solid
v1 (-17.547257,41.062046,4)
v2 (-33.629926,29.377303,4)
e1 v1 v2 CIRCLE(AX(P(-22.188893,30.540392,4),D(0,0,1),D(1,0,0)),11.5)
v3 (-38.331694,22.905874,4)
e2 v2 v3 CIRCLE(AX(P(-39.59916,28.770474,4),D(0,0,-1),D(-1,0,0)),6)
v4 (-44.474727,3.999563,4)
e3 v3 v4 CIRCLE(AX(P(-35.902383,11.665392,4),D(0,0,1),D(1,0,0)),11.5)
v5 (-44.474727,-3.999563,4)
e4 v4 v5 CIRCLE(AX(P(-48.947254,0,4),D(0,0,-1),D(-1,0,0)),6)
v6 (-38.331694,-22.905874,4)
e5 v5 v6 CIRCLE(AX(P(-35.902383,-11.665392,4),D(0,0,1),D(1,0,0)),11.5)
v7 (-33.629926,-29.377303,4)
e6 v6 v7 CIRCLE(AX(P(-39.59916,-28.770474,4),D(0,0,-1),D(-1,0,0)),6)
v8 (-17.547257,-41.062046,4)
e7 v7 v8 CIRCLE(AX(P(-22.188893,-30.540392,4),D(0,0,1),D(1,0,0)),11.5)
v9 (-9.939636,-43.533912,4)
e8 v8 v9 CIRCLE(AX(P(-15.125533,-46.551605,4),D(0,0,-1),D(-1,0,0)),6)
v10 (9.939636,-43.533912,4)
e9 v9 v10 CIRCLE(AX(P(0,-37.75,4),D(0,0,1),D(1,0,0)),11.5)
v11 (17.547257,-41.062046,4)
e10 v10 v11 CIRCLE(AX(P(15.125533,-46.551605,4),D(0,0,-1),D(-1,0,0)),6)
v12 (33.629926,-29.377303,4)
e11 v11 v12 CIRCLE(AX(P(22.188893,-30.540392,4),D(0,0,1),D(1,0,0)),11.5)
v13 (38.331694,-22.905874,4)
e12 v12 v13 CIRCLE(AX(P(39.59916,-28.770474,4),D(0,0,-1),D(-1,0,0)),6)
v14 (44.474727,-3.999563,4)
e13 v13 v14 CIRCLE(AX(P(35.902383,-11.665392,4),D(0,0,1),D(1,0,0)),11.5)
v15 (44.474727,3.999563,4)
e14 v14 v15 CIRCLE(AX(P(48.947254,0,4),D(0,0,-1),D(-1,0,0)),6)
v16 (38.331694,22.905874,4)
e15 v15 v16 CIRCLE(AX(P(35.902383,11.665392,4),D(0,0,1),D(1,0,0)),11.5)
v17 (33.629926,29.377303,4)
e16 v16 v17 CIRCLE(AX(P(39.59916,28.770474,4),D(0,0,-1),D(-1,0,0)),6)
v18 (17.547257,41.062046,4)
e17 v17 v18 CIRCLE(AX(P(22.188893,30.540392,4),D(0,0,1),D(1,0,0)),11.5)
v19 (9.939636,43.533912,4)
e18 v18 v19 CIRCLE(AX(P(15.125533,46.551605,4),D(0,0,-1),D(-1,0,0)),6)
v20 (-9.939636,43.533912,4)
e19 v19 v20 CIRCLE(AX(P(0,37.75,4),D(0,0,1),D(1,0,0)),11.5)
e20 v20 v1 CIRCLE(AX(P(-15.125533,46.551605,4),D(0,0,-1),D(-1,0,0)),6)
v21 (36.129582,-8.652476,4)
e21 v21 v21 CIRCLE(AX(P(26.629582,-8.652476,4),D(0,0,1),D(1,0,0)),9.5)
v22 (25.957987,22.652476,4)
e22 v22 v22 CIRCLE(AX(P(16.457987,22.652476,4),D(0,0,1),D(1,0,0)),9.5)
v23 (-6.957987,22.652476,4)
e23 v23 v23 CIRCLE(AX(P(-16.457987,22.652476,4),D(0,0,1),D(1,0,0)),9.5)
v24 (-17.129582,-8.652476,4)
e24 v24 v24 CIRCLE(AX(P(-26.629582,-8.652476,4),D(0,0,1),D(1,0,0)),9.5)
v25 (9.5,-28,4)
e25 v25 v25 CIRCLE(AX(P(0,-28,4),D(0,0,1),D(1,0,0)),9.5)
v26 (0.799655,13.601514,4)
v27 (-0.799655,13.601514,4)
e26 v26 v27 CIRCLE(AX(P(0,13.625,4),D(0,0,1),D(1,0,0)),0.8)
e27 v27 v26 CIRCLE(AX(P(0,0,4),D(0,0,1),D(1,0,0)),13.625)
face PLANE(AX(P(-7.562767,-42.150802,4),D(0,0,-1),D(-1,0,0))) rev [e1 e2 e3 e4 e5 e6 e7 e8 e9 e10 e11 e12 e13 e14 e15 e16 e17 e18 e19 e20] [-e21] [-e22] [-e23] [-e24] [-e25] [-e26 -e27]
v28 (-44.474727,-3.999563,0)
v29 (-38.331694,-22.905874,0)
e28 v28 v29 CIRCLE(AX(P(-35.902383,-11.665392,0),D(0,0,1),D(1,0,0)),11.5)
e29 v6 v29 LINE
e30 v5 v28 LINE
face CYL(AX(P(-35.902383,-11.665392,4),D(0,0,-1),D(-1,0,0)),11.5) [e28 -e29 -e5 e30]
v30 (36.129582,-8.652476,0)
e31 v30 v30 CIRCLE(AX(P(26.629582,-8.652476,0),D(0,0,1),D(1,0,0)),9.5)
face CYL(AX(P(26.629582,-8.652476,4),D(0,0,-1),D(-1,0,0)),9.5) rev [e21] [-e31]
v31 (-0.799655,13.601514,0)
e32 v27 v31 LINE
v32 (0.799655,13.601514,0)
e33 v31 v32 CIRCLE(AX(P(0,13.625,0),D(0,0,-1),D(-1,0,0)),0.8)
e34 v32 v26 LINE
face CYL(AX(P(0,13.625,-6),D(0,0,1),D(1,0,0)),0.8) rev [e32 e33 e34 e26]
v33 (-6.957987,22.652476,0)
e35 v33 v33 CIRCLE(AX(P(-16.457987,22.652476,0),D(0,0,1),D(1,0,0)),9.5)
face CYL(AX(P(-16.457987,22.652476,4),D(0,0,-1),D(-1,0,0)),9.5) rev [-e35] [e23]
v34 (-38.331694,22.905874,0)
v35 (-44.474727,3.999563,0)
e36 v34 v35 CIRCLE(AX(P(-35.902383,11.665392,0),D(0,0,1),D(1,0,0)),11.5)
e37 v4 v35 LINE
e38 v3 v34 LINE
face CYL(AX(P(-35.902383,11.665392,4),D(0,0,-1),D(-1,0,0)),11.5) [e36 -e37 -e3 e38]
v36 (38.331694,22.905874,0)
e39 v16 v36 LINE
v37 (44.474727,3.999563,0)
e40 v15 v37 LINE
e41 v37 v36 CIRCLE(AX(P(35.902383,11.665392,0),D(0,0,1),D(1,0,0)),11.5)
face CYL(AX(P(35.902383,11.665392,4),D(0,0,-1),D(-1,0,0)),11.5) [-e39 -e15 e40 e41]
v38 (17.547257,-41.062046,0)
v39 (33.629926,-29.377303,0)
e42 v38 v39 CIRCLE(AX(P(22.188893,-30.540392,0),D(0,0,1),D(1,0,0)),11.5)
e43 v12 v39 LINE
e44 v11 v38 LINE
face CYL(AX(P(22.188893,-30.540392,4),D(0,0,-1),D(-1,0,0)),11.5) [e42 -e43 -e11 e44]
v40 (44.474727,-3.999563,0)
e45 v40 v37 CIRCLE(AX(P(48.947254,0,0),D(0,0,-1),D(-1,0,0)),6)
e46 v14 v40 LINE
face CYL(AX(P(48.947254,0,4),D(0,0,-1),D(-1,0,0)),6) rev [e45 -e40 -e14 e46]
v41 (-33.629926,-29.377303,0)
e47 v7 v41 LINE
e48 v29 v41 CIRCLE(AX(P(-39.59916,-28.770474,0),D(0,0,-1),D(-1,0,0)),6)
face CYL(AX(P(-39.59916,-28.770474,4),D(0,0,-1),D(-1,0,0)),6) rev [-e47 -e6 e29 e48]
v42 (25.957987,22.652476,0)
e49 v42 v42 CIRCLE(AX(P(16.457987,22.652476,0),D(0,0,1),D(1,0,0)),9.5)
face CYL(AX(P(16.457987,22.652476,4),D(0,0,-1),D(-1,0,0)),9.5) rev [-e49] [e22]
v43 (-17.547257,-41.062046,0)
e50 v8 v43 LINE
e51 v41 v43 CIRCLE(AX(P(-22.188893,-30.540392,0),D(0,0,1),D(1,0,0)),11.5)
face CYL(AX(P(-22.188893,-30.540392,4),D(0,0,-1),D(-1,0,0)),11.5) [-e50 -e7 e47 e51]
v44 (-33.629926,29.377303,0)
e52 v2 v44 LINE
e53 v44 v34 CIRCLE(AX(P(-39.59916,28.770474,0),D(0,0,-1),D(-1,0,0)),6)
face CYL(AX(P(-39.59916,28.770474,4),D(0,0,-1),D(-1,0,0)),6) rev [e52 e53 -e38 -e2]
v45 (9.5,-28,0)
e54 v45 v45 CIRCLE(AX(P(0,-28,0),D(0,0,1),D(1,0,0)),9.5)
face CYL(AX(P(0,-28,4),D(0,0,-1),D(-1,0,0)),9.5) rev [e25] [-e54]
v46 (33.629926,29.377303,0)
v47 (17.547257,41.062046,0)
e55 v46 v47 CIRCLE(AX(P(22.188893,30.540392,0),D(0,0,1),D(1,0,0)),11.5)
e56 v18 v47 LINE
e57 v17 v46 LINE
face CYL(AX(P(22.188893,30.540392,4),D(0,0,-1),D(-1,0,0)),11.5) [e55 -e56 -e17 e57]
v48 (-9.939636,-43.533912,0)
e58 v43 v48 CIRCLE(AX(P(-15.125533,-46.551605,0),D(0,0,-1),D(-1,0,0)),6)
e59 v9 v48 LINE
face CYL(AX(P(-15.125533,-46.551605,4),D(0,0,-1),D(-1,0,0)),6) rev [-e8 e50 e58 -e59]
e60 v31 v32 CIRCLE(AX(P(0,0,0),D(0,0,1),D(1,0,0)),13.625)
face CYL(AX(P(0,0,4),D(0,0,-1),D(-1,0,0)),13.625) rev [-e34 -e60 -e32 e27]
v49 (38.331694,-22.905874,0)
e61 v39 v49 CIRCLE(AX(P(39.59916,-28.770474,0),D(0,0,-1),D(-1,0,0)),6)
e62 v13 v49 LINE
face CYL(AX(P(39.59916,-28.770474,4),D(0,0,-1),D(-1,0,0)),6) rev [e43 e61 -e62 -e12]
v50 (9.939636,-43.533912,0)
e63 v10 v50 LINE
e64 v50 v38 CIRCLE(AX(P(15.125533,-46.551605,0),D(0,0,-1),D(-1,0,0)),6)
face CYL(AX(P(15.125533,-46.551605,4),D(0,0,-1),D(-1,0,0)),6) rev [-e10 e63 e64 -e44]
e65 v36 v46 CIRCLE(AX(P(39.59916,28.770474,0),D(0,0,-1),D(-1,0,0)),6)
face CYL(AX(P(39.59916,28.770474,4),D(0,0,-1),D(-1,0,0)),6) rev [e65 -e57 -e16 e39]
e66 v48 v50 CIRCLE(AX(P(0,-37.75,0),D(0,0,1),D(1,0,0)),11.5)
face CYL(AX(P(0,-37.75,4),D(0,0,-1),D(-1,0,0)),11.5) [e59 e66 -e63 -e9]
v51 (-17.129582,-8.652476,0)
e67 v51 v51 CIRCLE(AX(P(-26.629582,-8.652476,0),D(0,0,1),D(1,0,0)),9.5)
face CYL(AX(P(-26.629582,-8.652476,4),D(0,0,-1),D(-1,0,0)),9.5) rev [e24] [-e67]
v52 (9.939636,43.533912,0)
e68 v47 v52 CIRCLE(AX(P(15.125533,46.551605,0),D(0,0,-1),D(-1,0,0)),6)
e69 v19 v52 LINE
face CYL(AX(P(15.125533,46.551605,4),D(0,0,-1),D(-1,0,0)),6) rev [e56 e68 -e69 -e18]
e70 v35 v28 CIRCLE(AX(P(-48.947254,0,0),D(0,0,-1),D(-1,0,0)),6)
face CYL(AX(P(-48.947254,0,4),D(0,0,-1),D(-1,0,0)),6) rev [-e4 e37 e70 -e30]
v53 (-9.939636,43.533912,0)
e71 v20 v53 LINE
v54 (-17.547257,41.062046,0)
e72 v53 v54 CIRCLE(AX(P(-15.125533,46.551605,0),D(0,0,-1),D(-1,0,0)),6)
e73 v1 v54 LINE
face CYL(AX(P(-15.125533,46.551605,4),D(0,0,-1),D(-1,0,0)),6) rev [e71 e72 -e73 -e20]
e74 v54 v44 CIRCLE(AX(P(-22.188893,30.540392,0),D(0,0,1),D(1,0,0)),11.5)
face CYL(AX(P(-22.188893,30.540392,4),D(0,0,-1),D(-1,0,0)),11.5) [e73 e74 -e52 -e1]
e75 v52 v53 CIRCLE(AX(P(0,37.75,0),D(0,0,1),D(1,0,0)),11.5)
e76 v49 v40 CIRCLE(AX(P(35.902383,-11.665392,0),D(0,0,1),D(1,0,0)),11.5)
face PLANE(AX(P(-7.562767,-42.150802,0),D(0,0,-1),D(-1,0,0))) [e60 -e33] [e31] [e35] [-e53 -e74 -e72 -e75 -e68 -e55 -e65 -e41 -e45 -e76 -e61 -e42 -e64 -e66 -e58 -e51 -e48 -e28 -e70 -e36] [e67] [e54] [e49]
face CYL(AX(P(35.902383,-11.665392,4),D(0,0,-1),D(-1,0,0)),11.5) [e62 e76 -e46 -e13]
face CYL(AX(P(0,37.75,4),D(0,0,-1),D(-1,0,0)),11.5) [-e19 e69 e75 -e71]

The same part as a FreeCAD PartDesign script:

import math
import FreeCAD as App
import Part
import Sketcher
Q = App.Units.Quantity

doc = App.newDocument("Part")
body = doc.addObject("PartDesign::Body", "Body")

# Sketch on XY plane
sketch1 = body.newObject("Sketcher::SketchObject", "Sketch")
sketch1.AttachmentSupport = (doc.getObject("XY_Plane"), [""])
sketch1.MapMode = "FlatFace"
sketch1.addGeometry([
    Part.ArcOfCircle(Part.Circle(App.Vector(0, -37.75, 0), App.Vector(0, 0, 1), 11.5), math.radians(-149.804714), math.radians(-30.195286)),  # 0
    Part.ArcOfCircle(Part.Circle(App.Vector(15.125533, -46.551605, 0), App.Vector(0, 0, 1), 6), math.radians(66.195286), math.radians(149.804714)),  # 1
    Part.ArcOfCircle(Part.Circle(App.Vector(22.188893, -30.540392, 0), App.Vector(0, 0, 1), 11.5), math.radians(-113.804714), math.radians(5.804714)),  # 2
    Part.ArcOfCircle(Part.Circle(App.Vector(39.59916, -28.770474, 0), App.Vector(0, 0, 1), 6), math.radians(102.195286), math.radians(185.804714)),  # 3
    Part.ArcOfCircle(Part.Circle(App.Vector(35.902383, -11.665392, 0), App.Vector(0, 0, 1), 11.5), math.radians(-77.804714), math.radians(41.804714)),  # 4
    Part.ArcOfCircle(Part.Circle(App.Vector(48.947254, 0, 0), App.Vector(0, 0, 1), 6), math.radians(138.195286), math.radians(221.804714)),  # 5
    Part.ArcOfCircle(Part.Circle(App.Vector(35.902383, 11.665392, 0), App.Vector(0, 0, 1), 11.5), math.radians(-41.804714), math.radians(77.804714)),  # 6
    Part.ArcOfCircle(Part.Circle(App.Vector(39.59916, 28.770474, 0), App.Vector(0, 0, 1), 6), math.radians(174.195286), math.radians(257.804714)),  # 7
    Part.ArcOfCircle(Part.Circle(App.Vector(22.188893, 30.540392, 0), App.Vector(0, 0, 1), 11.5), math.radians(-5.804714), math.radians(113.804714)),  # 8
    Part.ArcOfCircle(Part.Circle(App.Vector(15.125533, 46.551605, 0), App.Vector(0, 0, 1), 6), math.radians(-149.804714), math.radians(-66.195286)),  # 9
    Part.ArcOfCircle(Part.Circle(App.Vector(0, 37.75, 0), App.Vector(0, 0, 1), 11.5), math.radians(30.195286), math.radians(149.804714)),  # 10
    Part.ArcOfCircle(Part.Circle(App.Vector(-15.125533, 46.551605, 0), App.Vector(0, 0, 1), 6), math.radians(-113.804714), math.radians(-30.195286)),  # 11
    Part.ArcOfCircle(Part.Circle(App.Vector(-22.188893, 30.540392, 0), App.Vector(0, 0, 1), 11.5), math.radians(66.195286), math.radians(185.804714)),  # 12
    Part.ArcOfCircle(Part.Circle(App.Vector(-39.59916, 28.770474, 0), App.Vector(0, 0, 1), 6), math.radians(-77.804714), math.radians(5.804714)),  # 13
    Part.ArcOfCircle(Part.Circle(App.Vector(-35.902383, 11.665392, 0), App.Vector(0, 0, 1), 11.5), math.radians(102.195286), math.radians(221.804714)),  # 14
    Part.ArcOfCircle(Part.Circle(App.Vector(-48.947254, 0, 0), App.Vector(0, 0, 1), 6), math.radians(-41.804714), math.radians(41.804714)),  # 15
    Part.ArcOfCircle(Part.Circle(App.Vector(-35.902383, -11.665392, 0), App.Vector(0, 0, 1), 11.5), math.radians(138.195286), math.radians(257.804714)),  # 16
    Part.ArcOfCircle(Part.Circle(App.Vector(-39.59916, -28.770474, 0), App.Vector(0, 0, 1), 6), math.radians(-5.804714), math.radians(77.804714)),  # 17
    Part.ArcOfCircle(Part.Circle(App.Vector(-22.188893, -30.540392, 0), App.Vector(0, 0, 1), 11.5), math.radians(174.195286), math.radians(293.804714)),  # 18
    Part.ArcOfCircle(Part.Circle(App.Vector(-15.125533, -46.551605, 0), App.Vector(0, 0, 1), 6), math.radians(30.195286), math.radians(113.804714)),  # 19
    Part.Circle(App.Vector(-26.629582, -8.652476, 0), App.Vector(0, 0, 1), 9.5),  # 20
    Part.Circle(App.Vector(0, -28, 0), App.Vector(0, 0, 1), 9.5),  # 21
    Part.Circle(App.Vector(26.629582, -8.652476, 0), App.Vector(0, 0, 1), 9.5),  # 22
    Part.Circle(App.Vector(-16.457987, 22.652476, 0), App.Vector(0, 0, 1), 9.5),  # 23
    Part.Circle(App.Vector(0, 0, 0), App.Vector(0, 0, 1), 13.625),  # 24
    Part.Circle(App.Vector(16.457987, 22.652476, 0), App.Vector(0, 0, 1), 9.5),  # 25
], False)
sketch1.addConstraint([
    Sketcher.Constraint("Tangent", 0, 2, 1, 2),
    Sketcher.Constraint("Tangent", 1, 1, 2, 1),
    Sketcher.Constraint("Tangent", 2, 2, 3, 2),
    Sketcher.Constraint("Tangent", 3, 1, 4, 1),
    Sketcher.Constraint("Tangent", 4, 2, 5, 2),
    Sketcher.Constraint("Tangent", 5, 1, 6, 1),
    Sketcher.Constraint("Tangent", 6, 2, 7, 2),
    Sketcher.Constraint("Tangent", 7, 1, 8, 1),
    Sketcher.Constraint("Tangent", 8, 2, 9, 2),
    Sketcher.Constraint("Tangent", 9, 1, 10, 1),
    Sketcher.Constraint("Tangent", 10, 2, 11, 2),
    Sketcher.Constraint("Tangent", 11, 1, 12, 1),
    Sketcher.Constraint("Tangent", 12, 2, 13, 2),
    Sketcher.Constraint("Tangent", 13, 1, 14, 1),
    Sketcher.Constraint("Tangent", 14, 2, 15, 2),
    Sketcher.Constraint("Tangent", 15, 1, 16, 1),
    Sketcher.Constraint("Tangent", 16, 2, 17, 2),
    Sketcher.Constraint("Tangent", 17, 1, 18, 1),
    Sketcher.Constraint("Tangent", 18, 2, 19, 2),
    Sketcher.Constraint("Tangent", 19, 1, 0, 1),
    Sketcher.Constraint("Coincident", 24, 3, -1, 1),
    Sketcher.Constraint("Equal", 0, 2),
    Sketcher.Constraint("Equal", 1, 3),
    Sketcher.Constraint("Equal", 2, 4),
    Sketcher.Constraint("Equal", 3, 5),
    Sketcher.Constraint("Equal", 4, 6),
    Sketcher.Constraint("Equal", 5, 7),
    Sketcher.Constraint("Equal", 6, 8),
    Sketcher.Constraint("Equal", 7, 9),
    Sketcher.Constraint("Equal", 8, 10),
    Sketcher.Constraint("Equal", 9, 11),
    Sketcher.Constraint("Equal", 10, 12),
    Sketcher.Constraint("Equal", 11, 13),
    Sketcher.Constraint("Equal", 12, 14),
    Sketcher.Constraint("Equal", 13, 15),
    Sketcher.Constraint("Equal", 14, 16),
    Sketcher.Constraint("Equal", 15, 17),
    Sketcher.Constraint("Equal", 16, 18),
    Sketcher.Constraint("Equal", 17, 19),
    Sketcher.Constraint("Equal", 20, 21),
    Sketcher.Constraint("Equal", 21, 22),
    Sketcher.Constraint("Equal", 22, 23),
    Sketcher.Constraint("Equal", 23, 25),
    Sketcher.Constraint("Symmetric", 0, 3, 10, 3, -1, 1),
    Sketcher.Constraint("Symmetric", 2, 3, 12, 3, -1, 1),
    Sketcher.Constraint("Symmetric", 4, 3, 14, 3, -1, 1),
    Sketcher.Constraint("Symmetric", 6, 3, 16, 3, -1, 1),
    Sketcher.Constraint("Symmetric", 8, 3, 18, 3, -1, 1),
    Sketcher.Constraint("Symmetric", 9, 3, 11, 3, -2),
    Sketcher.Constraint("Symmetric", 7, 3, 13, 3, -2),
    Sketcher.Constraint("Symmetric", 20, 3, 22, 3, -2),
    Sketcher.Constraint("Symmetric", 23, 3, 25, 3, -2),
    Sketcher.Constraint("PointOnObject", 5, 3, -1),
    Sketcher.Constraint("PointOnObject", 21, 3, -2),
    Sketcher.Constraint("Diameter", 20, Q("19 mm")),
    Sketcher.Constraint("Radius", 1, Q("6 mm")),
    Sketcher.Constraint("Radius", 0, Q("11.5 mm")),
    Sketcher.Constraint("Diameter", 24, Q("27.25 mm")),
    Sketcher.Constraint("DistanceY", 21, 3, -1, 1, Q("28 mm")),
    Sketcher.Constraint("DistanceY", 0, 3, -1, 1, Q("37.75 mm")),
    Sketcher.Constraint("DistanceY", 2, 3, 4, 3, Q("18.875 mm")),
    Sketcher.Constraint("DistanceY", 17, 3, 20, 3, Q("20.117998 mm")),
    Sketcher.Constraint("DistanceY", 23, 3, 13, 3, Q("6.117998 mm")),
    Sketcher.Constraint("DistanceX", 16, 3, 20, 3, Q("9.272801 mm")),
    Sketcher.Constraint("DistanceY", 3, 3, 3, 1, Q("5.8646 mm")),
    Sketcher.Constraint("DistanceY", 2, 3, -1, 1, Q("30.540392 mm")),
    Sketcher.Constraint("DistanceX", -1, 1, 3, 3, Q("39.59916 mm")),
    Sketcher.Constraint("DistanceX", 25, 3, 7, 1, Q("17.171939 mm")),
])
pad1 = body.newObject("PartDesign::Pad", "Pad")
pad1.Profile = sketch1
pad1.Length = 4

# Sketch on XY plane
sketch2 = body.newObject("Sketcher::SketchObject", "Sketch001")
sketch2.AttachmentSupport = (doc.getObject("XY_Plane"), [""])
sketch2.MapMode = "FlatFace"
sketch2.AttachmentOffset = App.Placement(App.Vector(0, 0, 4), App.Rotation())
sketch2.addGeometry(Part.Circle(App.Vector(0, 13.625, 0), App.Vector(0, 0, 1), 0.8), False)
sketch2.addConstraint([
    Sketcher.Constraint("PointOnObject", 0, 3, -2),
    Sketcher.Constraint("Diameter", 0, Q("1.6 mm")),
    Sketcher.Constraint("DistanceY", -1, 1, 0, 3, Q("13.625 mm")),
])
pocket1 = body.newObject("PartDesign::Pocket", "Pocket")
pocket1.Profile = sketch2
pocket1.Length = 10

doc.recompute()
